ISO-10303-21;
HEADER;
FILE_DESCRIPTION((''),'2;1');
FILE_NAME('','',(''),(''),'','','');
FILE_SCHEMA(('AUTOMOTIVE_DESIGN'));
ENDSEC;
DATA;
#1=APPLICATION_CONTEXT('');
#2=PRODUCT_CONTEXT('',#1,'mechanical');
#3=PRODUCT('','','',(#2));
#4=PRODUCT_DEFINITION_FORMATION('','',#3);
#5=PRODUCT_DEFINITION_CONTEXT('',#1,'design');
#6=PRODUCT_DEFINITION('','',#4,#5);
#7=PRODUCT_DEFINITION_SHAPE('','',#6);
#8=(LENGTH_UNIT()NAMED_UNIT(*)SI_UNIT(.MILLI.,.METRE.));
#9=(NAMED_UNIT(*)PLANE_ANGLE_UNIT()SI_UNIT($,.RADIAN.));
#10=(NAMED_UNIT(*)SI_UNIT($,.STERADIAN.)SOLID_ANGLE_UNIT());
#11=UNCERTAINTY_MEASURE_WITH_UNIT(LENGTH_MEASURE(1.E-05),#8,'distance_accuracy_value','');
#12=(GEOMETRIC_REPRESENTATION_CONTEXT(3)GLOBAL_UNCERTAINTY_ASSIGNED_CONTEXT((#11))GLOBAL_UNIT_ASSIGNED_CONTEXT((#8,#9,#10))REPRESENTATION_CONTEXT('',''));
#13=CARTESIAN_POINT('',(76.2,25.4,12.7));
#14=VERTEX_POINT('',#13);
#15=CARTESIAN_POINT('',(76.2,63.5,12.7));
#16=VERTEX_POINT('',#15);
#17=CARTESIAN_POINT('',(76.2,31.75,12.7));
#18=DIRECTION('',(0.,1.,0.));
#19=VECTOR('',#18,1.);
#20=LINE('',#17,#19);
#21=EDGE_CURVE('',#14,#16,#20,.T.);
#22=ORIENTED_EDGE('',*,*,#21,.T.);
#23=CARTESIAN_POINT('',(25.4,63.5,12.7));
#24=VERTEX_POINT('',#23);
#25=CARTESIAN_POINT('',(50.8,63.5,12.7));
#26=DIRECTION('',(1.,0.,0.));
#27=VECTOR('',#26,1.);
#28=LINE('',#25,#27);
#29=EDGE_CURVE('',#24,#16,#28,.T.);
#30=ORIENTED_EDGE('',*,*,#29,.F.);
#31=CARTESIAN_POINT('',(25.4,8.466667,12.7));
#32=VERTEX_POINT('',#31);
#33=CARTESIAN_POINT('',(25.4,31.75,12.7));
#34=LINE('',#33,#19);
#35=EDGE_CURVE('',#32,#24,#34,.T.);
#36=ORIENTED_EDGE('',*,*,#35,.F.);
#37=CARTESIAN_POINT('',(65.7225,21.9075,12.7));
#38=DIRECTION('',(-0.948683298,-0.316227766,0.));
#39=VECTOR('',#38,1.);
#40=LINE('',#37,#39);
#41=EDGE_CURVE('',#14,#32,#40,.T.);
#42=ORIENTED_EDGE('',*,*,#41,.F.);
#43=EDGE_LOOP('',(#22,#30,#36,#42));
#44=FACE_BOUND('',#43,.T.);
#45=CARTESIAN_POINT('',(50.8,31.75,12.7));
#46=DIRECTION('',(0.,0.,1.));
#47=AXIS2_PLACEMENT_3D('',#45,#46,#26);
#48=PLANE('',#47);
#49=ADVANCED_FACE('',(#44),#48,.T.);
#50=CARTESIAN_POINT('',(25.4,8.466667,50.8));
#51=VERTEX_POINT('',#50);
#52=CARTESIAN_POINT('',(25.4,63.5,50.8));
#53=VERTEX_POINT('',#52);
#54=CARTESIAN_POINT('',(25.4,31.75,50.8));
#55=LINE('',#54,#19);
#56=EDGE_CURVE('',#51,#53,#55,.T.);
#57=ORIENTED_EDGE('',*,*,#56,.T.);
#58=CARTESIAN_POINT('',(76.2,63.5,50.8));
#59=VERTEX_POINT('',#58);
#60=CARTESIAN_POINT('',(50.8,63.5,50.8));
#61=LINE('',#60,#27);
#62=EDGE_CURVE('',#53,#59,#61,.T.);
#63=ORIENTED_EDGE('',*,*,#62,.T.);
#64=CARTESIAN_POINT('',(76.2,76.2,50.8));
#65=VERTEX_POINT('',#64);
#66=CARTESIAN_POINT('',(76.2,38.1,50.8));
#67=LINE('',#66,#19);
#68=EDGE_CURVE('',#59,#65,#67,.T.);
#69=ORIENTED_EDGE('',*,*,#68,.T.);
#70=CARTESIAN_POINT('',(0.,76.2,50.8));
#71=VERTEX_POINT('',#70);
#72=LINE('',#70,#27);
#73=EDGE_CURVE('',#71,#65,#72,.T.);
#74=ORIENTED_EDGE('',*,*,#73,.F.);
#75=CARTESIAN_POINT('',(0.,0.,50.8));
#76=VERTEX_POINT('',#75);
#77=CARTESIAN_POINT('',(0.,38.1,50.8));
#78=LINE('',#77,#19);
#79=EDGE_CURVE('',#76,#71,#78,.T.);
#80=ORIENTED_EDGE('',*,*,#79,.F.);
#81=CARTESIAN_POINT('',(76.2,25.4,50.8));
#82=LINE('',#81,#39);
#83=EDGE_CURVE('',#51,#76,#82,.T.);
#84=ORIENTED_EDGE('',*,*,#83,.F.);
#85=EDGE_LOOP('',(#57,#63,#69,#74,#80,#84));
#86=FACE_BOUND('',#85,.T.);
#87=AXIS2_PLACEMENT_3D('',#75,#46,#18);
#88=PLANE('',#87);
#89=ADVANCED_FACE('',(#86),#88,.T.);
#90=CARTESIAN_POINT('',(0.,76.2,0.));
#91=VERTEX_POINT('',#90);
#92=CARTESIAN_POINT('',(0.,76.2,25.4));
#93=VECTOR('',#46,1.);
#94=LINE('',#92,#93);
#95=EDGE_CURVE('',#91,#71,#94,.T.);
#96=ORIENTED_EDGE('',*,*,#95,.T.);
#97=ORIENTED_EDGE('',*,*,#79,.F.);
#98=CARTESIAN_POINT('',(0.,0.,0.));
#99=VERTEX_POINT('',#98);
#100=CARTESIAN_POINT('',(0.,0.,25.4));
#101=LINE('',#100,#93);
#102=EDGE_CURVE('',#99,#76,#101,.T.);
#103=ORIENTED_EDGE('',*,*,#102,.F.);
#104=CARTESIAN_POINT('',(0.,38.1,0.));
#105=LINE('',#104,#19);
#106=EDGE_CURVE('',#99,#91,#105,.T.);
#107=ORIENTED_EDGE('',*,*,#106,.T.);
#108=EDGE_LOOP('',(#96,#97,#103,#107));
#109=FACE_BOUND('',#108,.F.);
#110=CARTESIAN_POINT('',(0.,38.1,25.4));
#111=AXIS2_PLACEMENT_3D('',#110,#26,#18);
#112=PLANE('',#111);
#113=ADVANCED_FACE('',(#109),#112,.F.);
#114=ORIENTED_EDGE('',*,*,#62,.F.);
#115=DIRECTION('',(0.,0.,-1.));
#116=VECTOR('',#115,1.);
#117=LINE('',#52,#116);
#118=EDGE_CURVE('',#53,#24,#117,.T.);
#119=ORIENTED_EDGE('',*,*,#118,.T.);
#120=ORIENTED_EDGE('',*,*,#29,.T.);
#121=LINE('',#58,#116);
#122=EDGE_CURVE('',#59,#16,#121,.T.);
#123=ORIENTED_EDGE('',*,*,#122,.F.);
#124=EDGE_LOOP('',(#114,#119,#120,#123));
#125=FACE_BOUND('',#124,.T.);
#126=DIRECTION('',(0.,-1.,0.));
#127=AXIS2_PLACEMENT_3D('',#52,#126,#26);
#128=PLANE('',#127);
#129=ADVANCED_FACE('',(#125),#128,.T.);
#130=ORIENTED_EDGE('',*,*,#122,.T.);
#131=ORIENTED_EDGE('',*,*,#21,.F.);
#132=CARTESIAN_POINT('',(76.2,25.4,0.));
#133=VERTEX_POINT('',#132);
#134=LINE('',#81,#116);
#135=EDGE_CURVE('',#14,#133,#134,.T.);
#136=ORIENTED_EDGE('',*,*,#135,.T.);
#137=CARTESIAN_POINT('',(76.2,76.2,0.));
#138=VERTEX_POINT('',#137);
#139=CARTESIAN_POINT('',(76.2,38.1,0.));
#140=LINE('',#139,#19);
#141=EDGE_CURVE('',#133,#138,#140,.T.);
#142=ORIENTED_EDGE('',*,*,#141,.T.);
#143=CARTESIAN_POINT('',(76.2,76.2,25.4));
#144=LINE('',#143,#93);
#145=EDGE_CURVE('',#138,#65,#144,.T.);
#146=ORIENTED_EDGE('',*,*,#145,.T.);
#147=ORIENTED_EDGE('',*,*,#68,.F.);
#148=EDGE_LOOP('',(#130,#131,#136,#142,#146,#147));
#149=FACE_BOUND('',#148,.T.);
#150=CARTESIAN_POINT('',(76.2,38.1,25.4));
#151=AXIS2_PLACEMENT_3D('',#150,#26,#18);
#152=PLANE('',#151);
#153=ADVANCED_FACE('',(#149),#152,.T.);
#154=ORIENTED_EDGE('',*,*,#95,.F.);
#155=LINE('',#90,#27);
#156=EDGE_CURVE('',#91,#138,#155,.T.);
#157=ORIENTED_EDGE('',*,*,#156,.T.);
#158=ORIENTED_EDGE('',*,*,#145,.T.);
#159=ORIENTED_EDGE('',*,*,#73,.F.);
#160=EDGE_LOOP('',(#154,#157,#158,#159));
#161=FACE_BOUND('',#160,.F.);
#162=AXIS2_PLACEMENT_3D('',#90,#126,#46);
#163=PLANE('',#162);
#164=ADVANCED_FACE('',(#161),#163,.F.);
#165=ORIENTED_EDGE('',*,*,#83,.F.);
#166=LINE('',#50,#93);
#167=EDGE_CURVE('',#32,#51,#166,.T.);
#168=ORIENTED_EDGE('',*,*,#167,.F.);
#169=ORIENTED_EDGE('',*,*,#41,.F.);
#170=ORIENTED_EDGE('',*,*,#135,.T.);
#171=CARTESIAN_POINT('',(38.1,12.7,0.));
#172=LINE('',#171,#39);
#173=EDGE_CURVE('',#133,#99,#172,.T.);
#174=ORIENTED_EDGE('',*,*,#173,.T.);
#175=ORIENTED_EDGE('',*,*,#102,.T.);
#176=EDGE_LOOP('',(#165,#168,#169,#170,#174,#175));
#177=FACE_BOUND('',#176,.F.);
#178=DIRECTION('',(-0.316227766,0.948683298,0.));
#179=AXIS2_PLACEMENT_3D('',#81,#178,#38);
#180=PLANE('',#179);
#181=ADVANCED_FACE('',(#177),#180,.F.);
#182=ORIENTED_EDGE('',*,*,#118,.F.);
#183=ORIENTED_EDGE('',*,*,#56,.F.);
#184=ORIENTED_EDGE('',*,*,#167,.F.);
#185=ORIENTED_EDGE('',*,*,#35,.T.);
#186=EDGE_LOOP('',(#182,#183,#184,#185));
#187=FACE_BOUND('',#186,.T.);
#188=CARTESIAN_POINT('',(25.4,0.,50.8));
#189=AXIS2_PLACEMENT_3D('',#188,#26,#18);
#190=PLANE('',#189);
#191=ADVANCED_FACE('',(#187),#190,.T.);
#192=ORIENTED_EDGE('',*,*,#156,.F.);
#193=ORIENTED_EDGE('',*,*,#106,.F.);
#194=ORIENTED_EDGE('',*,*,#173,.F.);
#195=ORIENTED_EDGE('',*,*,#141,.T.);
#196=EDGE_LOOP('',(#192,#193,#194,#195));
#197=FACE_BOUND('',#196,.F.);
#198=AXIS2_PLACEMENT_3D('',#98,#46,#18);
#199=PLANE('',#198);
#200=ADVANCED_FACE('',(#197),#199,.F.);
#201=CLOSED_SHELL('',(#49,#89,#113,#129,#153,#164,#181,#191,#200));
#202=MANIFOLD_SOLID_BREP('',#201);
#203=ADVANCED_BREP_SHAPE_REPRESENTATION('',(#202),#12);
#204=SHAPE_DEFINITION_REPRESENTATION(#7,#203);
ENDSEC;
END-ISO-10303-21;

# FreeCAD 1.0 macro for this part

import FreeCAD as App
import Part
import Sketcher
from FreeCAD import Vector
Q = App.Units.Quantity

doc = App.newDocument("Part")
params = doc.addObject("Spreadsheet::Sheet", "Params")
for row, (alias, value) in enumerate([
    ("sketch1_width", "3 in"),
    ("sketch1_height", "2 in"),
    ("pad1_length", "3 in"),
    ("sketch2_width", "2 in"),
    ("sketch2_height", "2.5 in"),
    ("pocket1_length", "1.5 in"),
    ("sketch3_width", "3 in"),
    ("sketch3_height", "1 in"),
], start=1):
    params.set(f"A{row}", alias)
    params.set(f"B{row}", "=" + value)
    params.setAlias(f"B{row}", alias)

body = doc.addObject("PartDesign::Body", "Body")

# Sketch on YZ plane
sketch1 = doc.addObject("Sketcher::SketchObject", "Sketch")
body.addObject(sketch1)
sketch1.AttachmentSupport = (doc.YZ_Plane, [""])
sketch1.MapMode = "FlatFace"
sketch1.addGeometry(Part.LineSegment(Vector(0, 51, 0), Vector(0, 0, 0)), False)
sketch1.addGeometry(Part.LineSegment(Vector(0, 0, 0), Vector(76, 0, 0)), False)
sketch1.addGeometry(Part.LineSegment(Vector(76, 0, 0), Vector(76, 51, 0)), False)
sketch1.addGeometry(Part.LineSegment(Vector(76, 51, 0), Vector(0, 51, 0)), False)
sketch1.addConstraint(Sketcher.Constraint("Coincident", 0, 2, 1, 1))
sketch1.addConstraint(Sketcher.Constraint("Coincident", 1, 2, 2, 1))
sketch1.addConstraint(Sketcher.Constraint("Coincident", 2, 2, 3, 1))
sketch1.addConstraint(Sketcher.Constraint("Coincident", 3, 2, 0, 1))
sketch1.addConstraint(Sketcher.Constraint("Vertical", 0))
sketch1.addConstraint(Sketcher.Constraint("Horizontal", 1))
sketch1.addConstraint(Sketcher.Constraint("Vertical", 2))
sketch1.addConstraint(Sketcher.Constraint("Horizontal", 3))
sketch1.addConstraint(Sketcher.Constraint("Coincident", 0, 2, -1, 1))
sketch1.addConstraint(Sketcher.Constraint("DistanceX", 1, 1, 1, 2, Q("3 in")))
sketch1.addConstraint(Sketcher.Constraint("DistanceY", 0, 2, 0, 1, Q("2 in")))
sketch1.setExpression("Constraints[9]", "Params.sketch1_width")
sketch1.setExpression("Constraints[10]", "Params.sketch1_height")
pad1 = doc.addObject("PartDesign::Pad", "Pad")
body.addObject(pad1)
pad1.Profile = sketch1
pad1.setExpression("Length", "Params.pad1_length")

# Sketch on XY plane
sketch2 = doc.addObject("Sketcher::SketchObject", "Sketch001")
body.addObject(sketch2)
sketch2.AttachmentSupport = (doc.XY_Plane, [""])
sketch2.MapMode = "FlatFace"
sketch2.AttachmentOffset = App.Placement(Vector(0, 0, 2 * 25.4), App.Rotation())
sketch2.addGeometry(Part.LineSegment(Vector(25, 64, 0), Vector(25, 0, 0)), False)
sketch2.addGeometry(Part.LineSegment(Vector(25, 0, 0), Vector(76, 0, 0)), False)
sketch2.addGeometry(Part.LineSegment(Vector(76, 0, 0), Vector(76, 64, 0)), False)
sketch2.addGeometry(Part.LineSegment(Vector(76, 64, 0), Vector(25, 64, 0)), False)
sketch2.addConstraint(Sketcher.Constraint("Coincident", 0, 2, 1, 1))
sketch2.addConstraint(Sketcher.Constraint("Coincident", 1, 2, 2, 1))
sketch2.addConstraint(Sketcher.Constraint("Coincident", 2, 2, 3, 1))
sketch2.addConstraint(Sketcher.Constraint("Coincident", 3, 2, 0, 1))
sketch2.addConstraint(Sketcher.Constraint("Vertical", 0))
sketch2.addConstraint(Sketcher.Constraint("Horizontal", 1))
sketch2.addConstraint(Sketcher.Constraint("Vertical", 2))
sketch2.addConstraint(Sketcher.Constraint("Horizontal", 3))
sketch2.addConstraint(Sketcher.Constraint("PointOnObject", 0, 2, -1))
sketch2.addConstraint(Sketcher.Constraint("DistanceX", 1, 1, 1, 2, Q("2 in")))
sketch2.addConstraint(Sketcher.Constraint("DistanceY", 0, 2, 0, 1, Q("2.5 in")))
sketch2.addConstraint(Sketcher.Constraint("DistanceX", -1, 1, 0, 2, Q("1 in")))
sketch2.setExpression("Constraints[9]", "Params.sketch2_width")
sketch2.setExpression("Constraints[10]", "Params.sketch2_height")
pocket1 = doc.addObject("PartDesign::Pocket", "Pocket")
body.addObject(pocket1)
pocket1.Profile = sketch2
pocket1.setExpression("Length", "Params.pocket1_length")

# Sketch on XY plane
sketch3 = doc.addObject("Sketcher::SketchObject", "Sketch002")
body.addObject(sketch3)
sketch3.AttachmentSupport = (doc.XY_Plane, [""])
sketch3.MapMode = "FlatFace"
sketch3.AttachmentOffset = App.Placement(Vector(0, 0, 2 * 25.4), App.Rotation())
sketch3.addGeometry(Part.LineSegment(Vector(76, 0, 0), Vector(76, 25, 0)), False)
sketch3.addGeometry(Part.LineSegment(Vector(76, 25, 0), Vector(0, 0, 0)), False)
sketch3.addGeometry(Part.LineSegment(Vector(0, 0, 0), Vector(76, 0, 0)), False)
sketch3.addConstraint(Sketcher.Constraint("Coincident", 0, 2, 1, 1))
sketch3.addConstraint(Sketcher.Constraint("Coincident", 1, 2, 2, 1))
sketch3.addConstraint(Sketcher.Constraint("Coincident", 2, 2, 0, 1))
sketch3.addConstraint(Sketcher.Constraint("Vertical", 0))
sketch3.addConstraint(Sketcher.Constraint("Horizontal", 2))
sketch3.addConstraint(Sketcher.Constraint("Coincident", 1, 2, -1, 1))
sketch3.addConstraint(Sketcher.Constraint("DistanceX", 2, 1, 2, 2, Q("3 in")))
sketch3.addConstraint(Sketcher.Constraint("DistanceY", 0, 1, 0, 2, Q("1 in")))
sketch3.setExpression("Constraints[6]", "Params.sketch3_width")
sketch3.setExpression("Constraints[7]", "Params.sketch3_height")
pocket2 = doc.addObject("PartDesign::Pocket", "Pocket001")
body.addObject(pocket2)
pocket2.Profile = sketch3
pocket2.Type = "ThroughAll"

doc.recompute()
